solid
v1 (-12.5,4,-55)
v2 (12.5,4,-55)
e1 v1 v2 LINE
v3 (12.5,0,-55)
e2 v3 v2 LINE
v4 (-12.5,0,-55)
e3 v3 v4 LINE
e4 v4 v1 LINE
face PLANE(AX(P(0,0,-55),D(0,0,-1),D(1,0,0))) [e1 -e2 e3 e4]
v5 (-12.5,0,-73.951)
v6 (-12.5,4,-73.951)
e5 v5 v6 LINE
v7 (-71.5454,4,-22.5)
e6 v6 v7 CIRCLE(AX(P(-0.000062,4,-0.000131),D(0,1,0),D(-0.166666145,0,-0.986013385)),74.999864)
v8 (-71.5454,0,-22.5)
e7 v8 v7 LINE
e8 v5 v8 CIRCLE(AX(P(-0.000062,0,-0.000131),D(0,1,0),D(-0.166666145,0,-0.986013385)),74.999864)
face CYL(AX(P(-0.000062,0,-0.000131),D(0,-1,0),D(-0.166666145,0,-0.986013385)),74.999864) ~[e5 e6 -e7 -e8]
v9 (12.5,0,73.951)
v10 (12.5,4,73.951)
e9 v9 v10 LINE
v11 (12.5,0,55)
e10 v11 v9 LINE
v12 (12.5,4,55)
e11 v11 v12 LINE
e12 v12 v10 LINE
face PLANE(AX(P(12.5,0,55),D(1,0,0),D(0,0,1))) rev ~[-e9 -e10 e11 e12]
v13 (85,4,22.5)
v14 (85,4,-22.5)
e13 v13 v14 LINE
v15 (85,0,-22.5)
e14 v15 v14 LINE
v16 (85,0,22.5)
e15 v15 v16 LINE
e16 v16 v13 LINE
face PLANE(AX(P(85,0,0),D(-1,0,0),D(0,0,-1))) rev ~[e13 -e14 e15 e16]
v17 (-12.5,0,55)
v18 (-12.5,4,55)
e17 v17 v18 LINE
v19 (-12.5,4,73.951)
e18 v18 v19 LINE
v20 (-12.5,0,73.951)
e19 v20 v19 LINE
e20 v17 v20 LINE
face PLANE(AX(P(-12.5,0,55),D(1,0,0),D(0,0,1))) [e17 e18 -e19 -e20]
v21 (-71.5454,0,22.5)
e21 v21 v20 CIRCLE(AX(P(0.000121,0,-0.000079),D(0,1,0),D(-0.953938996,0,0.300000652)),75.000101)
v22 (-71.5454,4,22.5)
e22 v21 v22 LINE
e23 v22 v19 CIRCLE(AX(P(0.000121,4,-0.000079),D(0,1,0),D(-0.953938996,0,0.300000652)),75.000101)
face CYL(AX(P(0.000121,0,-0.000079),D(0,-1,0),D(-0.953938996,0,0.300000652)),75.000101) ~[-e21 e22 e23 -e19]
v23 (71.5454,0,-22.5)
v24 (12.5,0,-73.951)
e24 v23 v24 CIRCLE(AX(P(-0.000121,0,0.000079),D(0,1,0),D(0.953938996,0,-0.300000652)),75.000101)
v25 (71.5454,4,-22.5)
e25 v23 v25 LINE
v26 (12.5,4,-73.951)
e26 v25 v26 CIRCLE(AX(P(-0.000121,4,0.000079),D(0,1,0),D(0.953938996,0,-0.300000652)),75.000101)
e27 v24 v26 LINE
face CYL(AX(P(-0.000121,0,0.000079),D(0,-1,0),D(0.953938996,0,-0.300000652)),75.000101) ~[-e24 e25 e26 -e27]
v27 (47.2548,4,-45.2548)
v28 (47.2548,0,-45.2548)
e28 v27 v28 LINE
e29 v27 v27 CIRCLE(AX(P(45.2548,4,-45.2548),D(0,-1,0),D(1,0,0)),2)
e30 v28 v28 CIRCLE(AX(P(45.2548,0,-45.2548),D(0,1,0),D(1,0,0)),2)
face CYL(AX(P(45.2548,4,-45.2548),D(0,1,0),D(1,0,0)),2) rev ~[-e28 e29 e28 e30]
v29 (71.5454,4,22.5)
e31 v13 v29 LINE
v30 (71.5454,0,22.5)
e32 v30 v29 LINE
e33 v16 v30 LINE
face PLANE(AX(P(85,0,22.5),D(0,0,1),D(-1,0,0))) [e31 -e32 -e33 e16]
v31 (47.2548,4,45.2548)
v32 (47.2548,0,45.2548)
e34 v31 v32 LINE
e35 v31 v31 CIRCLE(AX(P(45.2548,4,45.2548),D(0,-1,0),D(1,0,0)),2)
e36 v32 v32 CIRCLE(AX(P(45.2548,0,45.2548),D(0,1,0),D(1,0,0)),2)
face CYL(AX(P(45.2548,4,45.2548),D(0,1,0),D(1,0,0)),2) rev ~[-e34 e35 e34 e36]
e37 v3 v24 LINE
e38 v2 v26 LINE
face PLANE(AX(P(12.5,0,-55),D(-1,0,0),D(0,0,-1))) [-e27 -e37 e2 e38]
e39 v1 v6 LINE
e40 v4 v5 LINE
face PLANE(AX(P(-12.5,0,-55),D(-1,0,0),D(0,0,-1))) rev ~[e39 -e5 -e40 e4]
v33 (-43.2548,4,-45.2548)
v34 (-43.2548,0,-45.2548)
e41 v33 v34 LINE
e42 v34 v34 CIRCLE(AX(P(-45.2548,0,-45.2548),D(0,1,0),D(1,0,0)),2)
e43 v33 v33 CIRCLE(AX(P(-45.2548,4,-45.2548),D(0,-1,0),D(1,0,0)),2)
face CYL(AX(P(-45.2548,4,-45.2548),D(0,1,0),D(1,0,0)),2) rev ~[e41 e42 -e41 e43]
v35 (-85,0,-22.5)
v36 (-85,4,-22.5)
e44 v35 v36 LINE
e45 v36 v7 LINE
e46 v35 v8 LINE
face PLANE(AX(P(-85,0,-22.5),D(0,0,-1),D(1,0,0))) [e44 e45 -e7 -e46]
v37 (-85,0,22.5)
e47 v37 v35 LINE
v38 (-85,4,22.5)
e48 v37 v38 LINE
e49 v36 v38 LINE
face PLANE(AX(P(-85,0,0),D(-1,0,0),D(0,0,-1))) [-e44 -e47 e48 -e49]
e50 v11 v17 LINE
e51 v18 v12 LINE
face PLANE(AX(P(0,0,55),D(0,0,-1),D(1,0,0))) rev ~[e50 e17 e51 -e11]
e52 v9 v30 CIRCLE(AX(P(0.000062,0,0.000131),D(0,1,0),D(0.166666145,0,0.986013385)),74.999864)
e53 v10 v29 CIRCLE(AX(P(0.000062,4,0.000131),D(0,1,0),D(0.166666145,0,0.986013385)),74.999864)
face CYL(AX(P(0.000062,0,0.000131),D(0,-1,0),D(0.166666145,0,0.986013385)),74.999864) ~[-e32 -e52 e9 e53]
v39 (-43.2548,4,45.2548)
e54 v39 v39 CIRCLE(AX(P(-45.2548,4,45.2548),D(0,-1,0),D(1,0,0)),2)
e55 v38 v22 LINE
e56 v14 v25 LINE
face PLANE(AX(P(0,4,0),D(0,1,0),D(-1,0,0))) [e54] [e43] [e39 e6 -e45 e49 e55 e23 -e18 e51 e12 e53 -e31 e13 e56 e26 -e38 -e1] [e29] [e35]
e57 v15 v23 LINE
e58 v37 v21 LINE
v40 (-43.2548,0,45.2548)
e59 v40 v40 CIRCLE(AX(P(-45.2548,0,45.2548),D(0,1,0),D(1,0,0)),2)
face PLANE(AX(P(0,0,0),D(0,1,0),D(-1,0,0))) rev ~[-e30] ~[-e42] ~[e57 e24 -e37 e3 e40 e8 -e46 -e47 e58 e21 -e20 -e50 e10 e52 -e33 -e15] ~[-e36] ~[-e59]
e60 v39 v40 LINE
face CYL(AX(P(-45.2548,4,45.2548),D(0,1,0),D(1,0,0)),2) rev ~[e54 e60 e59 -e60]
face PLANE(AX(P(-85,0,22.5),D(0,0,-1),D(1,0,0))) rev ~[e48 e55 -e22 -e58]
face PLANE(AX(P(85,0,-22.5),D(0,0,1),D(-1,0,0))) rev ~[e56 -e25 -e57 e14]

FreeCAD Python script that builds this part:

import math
import FreeCAD as App
import Part
import Sketcher

V = App.Vector

doc = App.newDocument("Part")
params = doc.addObject("Spreadsheet::Sheet", "Params")
for row, (alias, value) in enumerate([
    ("sketch1_radius", "75 mm"),
    ("pad1_length", "4 mm"),
    ("sketch2_diameter", "4 mm"),
    ("pocket1_length", "4 mm"),
], start=1):
    params.set(f"A{row}", alias)
    params.set(f"B{row}", "=" + value)
    params.setAlias(f"B{row}", alias)

body = doc.addObject("PartDesign::Body", "Body")

# Sketch on XZ plane
sketch1 = body.newObject("Sketcher::SketchObject", "Sketch")
sketch1.AttachmentSupport = (doc.getObject("XZ_Plane"), [""])
sketch1.MapMode = "FlatFace"
sketch1.addGeometry([
    Part.LineSegment(V(12, -55, 0), V(-12, -55, 0)),  # 0
    Part.LineSegment(V(-12, -55, 0), V(-12, -74, 0)),  # 1
    Part.ArcOfCircle(Part.Circle(V(0, 0, 0), V(0, 0, 1), 75), math.radians(-163), math.radians(-100)),  # 2
    Part.LineSegment(V(-72, -22, 0), V(-85, -22, 0)),  # 3
    Part.LineSegment(V(-85, -22, 0), V(-85, 22, 0)),  # 4
    Part.LineSegment(V(-85, 22, 0), V(-72, 22, 0)),  # 5
    Part.ArcOfCircle(Part.Circle(V(0, 0, 0), V(0, 0, 1), 75), math.radians(100), math.radians(163)),  # 6
    Part.LineSegment(V(-12, 74, 0), V(-12, 55, 0)),  # 7
    Part.LineSegment(V(-12, 55, 0), V(12, 55, 0)),  # 8
    Part.LineSegment(V(12, 55, 0), V(12, 74, 0)),  # 9
    Part.ArcOfCircle(Part.Circle(V(0, 0, 0), V(0, 0, 1), 75), math.radians(17), math.radians(80)),  # 10
    Part.LineSegment(V(72, 22, 0), V(85, 22, 0)),  # 11
    Part.LineSegment(V(85, 22, 0), V(85, -22, 0)),  # 12
    Part.LineSegment(V(85, -22, 0), V(72, -22, 0)),  # 13
    Part.ArcOfCircle(Part.Circle(V(0, 0, 0), V(0, 0, 1), 75), math.radians(-80), math.radians(-17)),  # 14
    Part.LineSegment(V(12, -74, 0), V(12, -55, 0)),  # 15
], False)
sketch1.addConstraint([
    Sketcher.Constraint("Coincident", 0, 2, 1, 1),
    Sketcher.Constraint("Coincident", 1, 2, 2, 2),
    Sketcher.Constraint("Coincident", 2, 1, 3, 1),
    Sketcher.Constraint("Coincident", 3, 2, 4, 1),
    Sketcher.Constraint("Coincident", 4, 2, 5, 1),
    Sketcher.Constraint("Coincident", 5, 2, 6, 2),
    Sketcher.Constraint("Coincident", 6, 1, 7, 1),
    Sketcher.Constraint("Coincident", 7, 2, 8, 1),
    Sketcher.Constraint("Coincident", 8, 2, 9, 1),
    Sketcher.Constraint("Coincident", 9, 2, 10, 2),
    Sketcher.Constraint("Coincident", 10, 1, 11, 1),
    Sketcher.Constraint("Coincident", 11, 2, 12, 1),
    Sketcher.Constraint("Coincident", 12, 2, 13, 1),
    Sketcher.Constraint("Coincident", 13, 2, 14, 2),
    Sketcher.Constraint("Coincident", 14, 1, 15, 1),
    Sketcher.Constraint("Coincident", 15, 2, 0, 1),
    Sketcher.Constraint("Horizontal", 0),
    Sketcher.Constraint("Vertical", 1),
    Sketcher.Constraint("Horizontal", 3),
    Sketcher.Constraint("Vertical", 4),
    Sketcher.Constraint("Horizontal", 5),
    Sketcher.Constraint("Vertical", 7),
    Sketcher.Constraint("Horizontal", 8),
    Sketcher.Constraint("Vertical", 9),
    Sketcher.Constraint("Horizontal", 11),
    Sketcher.Constraint("Vertical", 12),
    Sketcher.Constraint("Horizontal", 13),
    Sketcher.Constraint("Vertical", 15),
    Sketcher.Constraint("Coincident", 2, 3, -1, 1),
    Sketcher.Constraint("Coincident", 6, 3, -1, 1),
    Sketcher.Constraint("Coincident", 10, 3, -1, 1),
    Sketcher.Constraint("Coincident", 14, 3, -1, 1),
    Sketcher.Constraint("Equal", 2, 6),
    Sketcher.Constraint("Equal", 6, 10),
    Sketcher.Constraint("Equal", 10, 14),
    Sketcher.Constraint("Symmetric", 0, 2, 8, 2, -1, 1),
    Sketcher.Constraint("Symmetric", 3, 2, 11, 2, -1, 1),
    Sketcher.Constraint("Horizontal", 6, 1, 9, 2),
    Sketcher.Constraint("Horizontal", 5, 2, 10, 1),
    Sketcher.Constraint("Horizontal", 3, 2, 12, 2),
    Sketcher.Constraint("Horizontal", 1, 2, 14, 1),
    Sketcher.Constraint("Radius", 2, 75.0),
    Sketcher.Constraint("DistanceX", 0, 2, -1, 1, 12.5),
    Sketcher.Constraint("DistanceY", 2, 1, -1, 1, 22.5),
    Sketcher.Constraint("DistanceY", 0, 2, -1, 1, 55.0),
    Sketcher.Constraint("DistanceX", 3, 2, -1, 1, 85.0),
])
sketch1.setExpression("Constraints[41]", "Params.sketch1_radius")
pad1 = body.newObject("PartDesign::Pad", "Pad")
pad1.Profile = sketch1
pad1.setExpression("Length", "Params.pad1_length")
pad1.Reversed = True

# Sketch on XZ plane
sketch2 = body.newObject("Sketcher::SketchObject", "Sketch001")
sketch2.AttachmentSupport = (doc.getObject("XZ_Plane"), [""])
sketch2.MapMode = "FlatFace"
sketch2.AttachmentOffset = App.Placement(V(0, 0, -4), App.Rotation())
sketch2.addGeometry([
    Part.Circle(V(45.3, -45.3, 0), V(0, 0, 1), 2),
    Part.Circle(V(45.3, 45.3, 0), V(0, 0, 1), 2),
    Part.Circle(V(-45.3, -45.3, 0), V(0, 0, 1), 2),
    Part.Circle(V(-45.3, 45.3, 0), V(0, 0, 1), 2),
], False)
sketch2.addConstraint([
    Sketcher.Constraint("Equal", 0, 1),
    Sketcher.Constraint("Equal", 1, 2),
    Sketcher.Constraint("Equal", 2, 3),
    Sketcher.Constraint("Symmetric", 1, 3, 2, 3, -1, 1),
    Sketcher.Constraint("Symmetric", 0, 3, 3, 3, -1, 1),
    Sketcher.Constraint("Symmetric", 0, 3, 2, 3, -2),
    Sketcher.Constraint("Diameter", 0, 4.0),
    Sketcher.Constraint("DistanceX", -1, 1, 0, 3, 45.2548),
    Sketcher.Constraint("DistanceY", 0, 3, -1, 1, 45.2548),
])
sketch2.setExpression("Constraints[6]", "Params.sketch2_diameter")
pocket1 = body.newObject("PartDesign::Pocket", "Pocket")
pocket1.Profile = sketch2
pocket1.setExpression("Length", "Params.pocket1_length")
pocket1.Reversed = True

doc.recompute()
